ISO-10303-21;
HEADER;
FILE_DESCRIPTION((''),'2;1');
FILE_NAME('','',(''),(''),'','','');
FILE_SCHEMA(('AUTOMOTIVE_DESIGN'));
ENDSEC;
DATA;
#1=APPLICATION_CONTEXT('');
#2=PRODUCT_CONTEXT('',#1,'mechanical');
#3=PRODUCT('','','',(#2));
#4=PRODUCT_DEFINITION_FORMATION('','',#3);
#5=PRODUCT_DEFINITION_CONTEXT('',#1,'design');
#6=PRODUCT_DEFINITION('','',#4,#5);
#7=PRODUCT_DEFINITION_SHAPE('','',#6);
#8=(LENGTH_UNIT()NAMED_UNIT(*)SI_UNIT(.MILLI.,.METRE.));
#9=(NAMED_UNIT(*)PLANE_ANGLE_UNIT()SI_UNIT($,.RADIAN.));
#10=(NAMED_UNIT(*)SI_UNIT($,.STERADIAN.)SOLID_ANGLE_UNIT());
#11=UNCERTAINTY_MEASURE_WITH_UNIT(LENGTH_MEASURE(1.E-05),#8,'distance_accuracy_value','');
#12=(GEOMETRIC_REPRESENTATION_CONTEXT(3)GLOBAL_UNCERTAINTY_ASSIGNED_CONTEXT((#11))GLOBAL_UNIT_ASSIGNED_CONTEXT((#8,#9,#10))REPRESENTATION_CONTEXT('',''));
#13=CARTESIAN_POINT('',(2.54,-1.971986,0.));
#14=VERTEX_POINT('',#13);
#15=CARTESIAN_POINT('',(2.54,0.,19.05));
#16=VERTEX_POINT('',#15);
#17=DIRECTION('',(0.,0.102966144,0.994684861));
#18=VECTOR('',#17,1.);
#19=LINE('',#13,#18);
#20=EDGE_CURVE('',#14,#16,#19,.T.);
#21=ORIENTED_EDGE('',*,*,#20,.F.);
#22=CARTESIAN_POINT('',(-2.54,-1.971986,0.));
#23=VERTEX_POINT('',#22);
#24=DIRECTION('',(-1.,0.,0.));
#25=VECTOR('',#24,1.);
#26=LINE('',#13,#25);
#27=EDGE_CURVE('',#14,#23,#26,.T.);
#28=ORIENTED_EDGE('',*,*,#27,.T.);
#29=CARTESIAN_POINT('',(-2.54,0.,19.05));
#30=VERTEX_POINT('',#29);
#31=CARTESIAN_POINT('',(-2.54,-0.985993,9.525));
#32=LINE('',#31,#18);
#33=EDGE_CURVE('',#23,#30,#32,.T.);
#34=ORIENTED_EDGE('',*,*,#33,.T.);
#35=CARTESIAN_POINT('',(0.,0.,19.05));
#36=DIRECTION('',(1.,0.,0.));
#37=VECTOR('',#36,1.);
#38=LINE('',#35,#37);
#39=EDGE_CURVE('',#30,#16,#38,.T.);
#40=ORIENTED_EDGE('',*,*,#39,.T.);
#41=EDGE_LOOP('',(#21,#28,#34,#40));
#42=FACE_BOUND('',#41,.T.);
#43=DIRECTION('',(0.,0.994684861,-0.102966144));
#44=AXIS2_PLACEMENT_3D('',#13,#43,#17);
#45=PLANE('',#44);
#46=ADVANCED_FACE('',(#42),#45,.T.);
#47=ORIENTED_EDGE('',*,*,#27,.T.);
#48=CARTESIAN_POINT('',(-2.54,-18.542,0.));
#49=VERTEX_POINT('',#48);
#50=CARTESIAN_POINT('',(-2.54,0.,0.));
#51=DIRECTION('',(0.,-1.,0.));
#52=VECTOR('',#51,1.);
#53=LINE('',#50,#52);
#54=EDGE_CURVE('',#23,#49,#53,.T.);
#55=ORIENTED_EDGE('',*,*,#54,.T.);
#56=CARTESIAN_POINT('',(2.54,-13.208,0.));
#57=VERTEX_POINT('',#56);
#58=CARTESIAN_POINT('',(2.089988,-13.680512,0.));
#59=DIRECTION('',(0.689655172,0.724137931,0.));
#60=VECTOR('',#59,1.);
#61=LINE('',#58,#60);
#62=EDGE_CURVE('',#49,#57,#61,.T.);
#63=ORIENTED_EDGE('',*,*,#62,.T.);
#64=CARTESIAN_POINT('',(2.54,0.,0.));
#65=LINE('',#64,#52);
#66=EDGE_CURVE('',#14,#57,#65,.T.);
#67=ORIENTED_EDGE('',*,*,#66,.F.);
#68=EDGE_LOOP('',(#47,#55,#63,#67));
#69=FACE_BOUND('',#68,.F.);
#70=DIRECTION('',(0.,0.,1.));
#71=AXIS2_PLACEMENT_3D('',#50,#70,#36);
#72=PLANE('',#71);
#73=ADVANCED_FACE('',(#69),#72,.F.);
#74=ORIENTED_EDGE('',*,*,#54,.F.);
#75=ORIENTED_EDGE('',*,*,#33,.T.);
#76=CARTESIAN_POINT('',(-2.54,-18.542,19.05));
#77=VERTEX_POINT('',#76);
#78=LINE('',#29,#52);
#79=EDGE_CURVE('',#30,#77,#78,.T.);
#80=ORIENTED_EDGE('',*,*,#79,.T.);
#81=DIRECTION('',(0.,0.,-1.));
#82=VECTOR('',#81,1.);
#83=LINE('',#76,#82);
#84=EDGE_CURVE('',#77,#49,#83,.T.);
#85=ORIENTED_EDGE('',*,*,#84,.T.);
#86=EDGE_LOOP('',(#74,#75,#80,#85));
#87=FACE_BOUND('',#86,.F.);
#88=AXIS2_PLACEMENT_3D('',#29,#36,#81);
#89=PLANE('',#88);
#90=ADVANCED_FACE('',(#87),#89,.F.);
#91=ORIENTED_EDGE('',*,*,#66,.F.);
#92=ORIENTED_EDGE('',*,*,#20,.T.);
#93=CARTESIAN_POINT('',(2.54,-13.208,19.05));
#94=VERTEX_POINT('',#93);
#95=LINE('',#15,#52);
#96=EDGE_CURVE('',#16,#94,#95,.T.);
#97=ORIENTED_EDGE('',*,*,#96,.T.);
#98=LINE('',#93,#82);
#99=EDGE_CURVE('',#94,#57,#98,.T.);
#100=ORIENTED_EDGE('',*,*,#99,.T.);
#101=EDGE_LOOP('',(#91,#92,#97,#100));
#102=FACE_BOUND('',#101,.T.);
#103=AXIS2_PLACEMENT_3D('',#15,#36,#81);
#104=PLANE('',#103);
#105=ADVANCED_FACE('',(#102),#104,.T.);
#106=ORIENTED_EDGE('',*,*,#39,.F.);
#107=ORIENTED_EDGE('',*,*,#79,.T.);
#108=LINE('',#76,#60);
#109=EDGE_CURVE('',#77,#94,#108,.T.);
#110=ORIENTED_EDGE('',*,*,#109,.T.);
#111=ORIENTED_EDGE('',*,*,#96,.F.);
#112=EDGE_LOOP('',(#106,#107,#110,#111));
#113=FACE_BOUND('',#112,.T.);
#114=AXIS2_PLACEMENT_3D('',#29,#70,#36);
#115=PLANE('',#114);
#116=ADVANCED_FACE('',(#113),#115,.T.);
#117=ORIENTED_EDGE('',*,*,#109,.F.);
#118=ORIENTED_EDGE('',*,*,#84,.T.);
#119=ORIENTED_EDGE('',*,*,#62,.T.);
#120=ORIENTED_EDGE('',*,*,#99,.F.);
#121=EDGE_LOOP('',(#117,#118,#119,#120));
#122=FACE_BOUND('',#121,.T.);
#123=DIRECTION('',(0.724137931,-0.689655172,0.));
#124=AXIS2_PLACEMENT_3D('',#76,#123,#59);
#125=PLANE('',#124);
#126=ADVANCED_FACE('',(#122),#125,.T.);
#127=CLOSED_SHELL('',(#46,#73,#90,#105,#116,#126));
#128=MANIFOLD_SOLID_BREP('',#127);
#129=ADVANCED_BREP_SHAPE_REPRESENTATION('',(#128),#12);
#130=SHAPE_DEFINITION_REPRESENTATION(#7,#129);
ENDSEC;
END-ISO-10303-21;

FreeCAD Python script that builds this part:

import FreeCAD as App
import Part
import Sketcher
from FreeCAD import Vector
Q = App.Units.Quantity


def add_polygon(sketch, points):
    """Adds a closed chain of lines whose ends are joined by coincident constraints."""
    first, n = sketch.GeometryCount, len(points)
    for a, b in zip(points, points[1:] + points[:1]):
        sketch.addGeometry(Part.LineSegment(App.Vector(*a, 0), App.Vector(*b, 0)), False)
    for i in range(n):
        sketch.addConstraint(Sketcher.Constraint("Coincident", first + i, 2, first + (i + 1) % n, 1))

doc = App.newDocument("Part")
body = doc.addObject("PartDesign::Body", "Body")

# Sketch on XZ plane
sketch1 = body.newObject("Sketcher::SketchObject", "Sketch")
sketch1.AttachmentSupport = (doc.getObject("XZ_Plane"), [""])
sketch1.MapMode = "FlatFace"
add_polygon(sketch1, [(-2.54, 0), (-2.54, 19.05), (2.54, 19.05), (2.54, 0)])  # lines 0-3
sketch1.addConstraint([
    Sketcher.Constraint("Vertical", 0),
    Sketcher.Constraint("Horizontal", 1),
    Sketcher.Constraint("Vertical", 2),
    Sketcher.Constraint("Horizontal", 3),
    Sketcher.Constraint("Symmetric", 2, 2, 3, 2, -1, 1),
    Sketcher.Constraint("DistanceX", 1, 1, 1, 2, Q("0.2 in")),
    Sketcher.Constraint("DistanceY", 0, 1, 0, 2, Q("0.75 in")),
])
pad1 = body.newObject("PartDesign::Pad", "Pad")
pad1.Profile = sketch1
pad1.Length = Q("0.82 in")

# Sketch on YZ plane
sketch2 = body.newObject("Sketcher::SketchObject", "Sketch001")
sketch2.AttachmentSupport = (doc.getObject("YZ_Plane"), [""])
sketch2.MapMode = "FlatFace"
sketch2.AttachmentOffset = App.Placement(Vector(0, 0, 0.1 * 25.4), App.Rotation())
add_polygon(sketch2, [(0, 19.05), (-1.971986, 0), (0, 0)])  # lines 0-2
sketch2.addConstraint([
    Sketcher.Constraint("Horizontal", 1),
    Sketcher.Constraint("Vertical", 2),
    Sketcher.Constraint("Coincident", 1, 2, -1, 1),
    Sketcher.Constraint("DistanceY", 2, 1, 2, 2, Q("0.75 in")),
    Sketcher.Constraint("Angle", 0, Q("-95.91 deg")),
])
pocket1 = body.newObject("PartDesign::Pocket", "Pocket")
pocket1.Profile = sketch2
pocket1.Type = "ThroughAll"

# Sketch on XY plane
sketch3 = body.newObject("Sketcher::SketchObject", "Sketch002")
sketch3.AttachmentSupport = (doc.getObject("XY_Plane"), [""])
sketch3.MapMode = "FlatFace"
sketch3.AttachmentOffset = App.Placement(Vector(0, 0, 0.75 * 25.4), App.Rotation())
add_polygon(sketch3, [(-2.54, -18.542), (-2.54, -20.828), (2.54, -20.828), (2.54, -13.208)])  # lines 0-3
sketch3.addConstraint([
    Sketcher.Constraint("Vertical", 0),
    Sketcher.Constraint("Horizontal", 1),
    Sketcher.Constraint("Vertical", 2),
    Sketcher.Constraint("DistanceX", 1, 1, 1, 2, Q("0.2 in")),
    Sketcher.Constraint("DistanceY", 2, 1, 2, 2, Q("0.3 in")),
    Sketcher.Constraint("DistanceY", 0, 2, 0, 1, Q("0.09 in")),
    Sketcher.Constraint("DistanceX", 0, 2, -1, 1, Q("0.1 in")),
    Sketcher.Constraint("DistanceY", 0, 2, -1, 1, Q("0.82 in")),
])
pocket2 = body.newObject("PartDesign::Pocket", "Pocket001")
pocket2.Profile = sketch3
pocket2.Type = "ThroughAll"

doc.recompute()
